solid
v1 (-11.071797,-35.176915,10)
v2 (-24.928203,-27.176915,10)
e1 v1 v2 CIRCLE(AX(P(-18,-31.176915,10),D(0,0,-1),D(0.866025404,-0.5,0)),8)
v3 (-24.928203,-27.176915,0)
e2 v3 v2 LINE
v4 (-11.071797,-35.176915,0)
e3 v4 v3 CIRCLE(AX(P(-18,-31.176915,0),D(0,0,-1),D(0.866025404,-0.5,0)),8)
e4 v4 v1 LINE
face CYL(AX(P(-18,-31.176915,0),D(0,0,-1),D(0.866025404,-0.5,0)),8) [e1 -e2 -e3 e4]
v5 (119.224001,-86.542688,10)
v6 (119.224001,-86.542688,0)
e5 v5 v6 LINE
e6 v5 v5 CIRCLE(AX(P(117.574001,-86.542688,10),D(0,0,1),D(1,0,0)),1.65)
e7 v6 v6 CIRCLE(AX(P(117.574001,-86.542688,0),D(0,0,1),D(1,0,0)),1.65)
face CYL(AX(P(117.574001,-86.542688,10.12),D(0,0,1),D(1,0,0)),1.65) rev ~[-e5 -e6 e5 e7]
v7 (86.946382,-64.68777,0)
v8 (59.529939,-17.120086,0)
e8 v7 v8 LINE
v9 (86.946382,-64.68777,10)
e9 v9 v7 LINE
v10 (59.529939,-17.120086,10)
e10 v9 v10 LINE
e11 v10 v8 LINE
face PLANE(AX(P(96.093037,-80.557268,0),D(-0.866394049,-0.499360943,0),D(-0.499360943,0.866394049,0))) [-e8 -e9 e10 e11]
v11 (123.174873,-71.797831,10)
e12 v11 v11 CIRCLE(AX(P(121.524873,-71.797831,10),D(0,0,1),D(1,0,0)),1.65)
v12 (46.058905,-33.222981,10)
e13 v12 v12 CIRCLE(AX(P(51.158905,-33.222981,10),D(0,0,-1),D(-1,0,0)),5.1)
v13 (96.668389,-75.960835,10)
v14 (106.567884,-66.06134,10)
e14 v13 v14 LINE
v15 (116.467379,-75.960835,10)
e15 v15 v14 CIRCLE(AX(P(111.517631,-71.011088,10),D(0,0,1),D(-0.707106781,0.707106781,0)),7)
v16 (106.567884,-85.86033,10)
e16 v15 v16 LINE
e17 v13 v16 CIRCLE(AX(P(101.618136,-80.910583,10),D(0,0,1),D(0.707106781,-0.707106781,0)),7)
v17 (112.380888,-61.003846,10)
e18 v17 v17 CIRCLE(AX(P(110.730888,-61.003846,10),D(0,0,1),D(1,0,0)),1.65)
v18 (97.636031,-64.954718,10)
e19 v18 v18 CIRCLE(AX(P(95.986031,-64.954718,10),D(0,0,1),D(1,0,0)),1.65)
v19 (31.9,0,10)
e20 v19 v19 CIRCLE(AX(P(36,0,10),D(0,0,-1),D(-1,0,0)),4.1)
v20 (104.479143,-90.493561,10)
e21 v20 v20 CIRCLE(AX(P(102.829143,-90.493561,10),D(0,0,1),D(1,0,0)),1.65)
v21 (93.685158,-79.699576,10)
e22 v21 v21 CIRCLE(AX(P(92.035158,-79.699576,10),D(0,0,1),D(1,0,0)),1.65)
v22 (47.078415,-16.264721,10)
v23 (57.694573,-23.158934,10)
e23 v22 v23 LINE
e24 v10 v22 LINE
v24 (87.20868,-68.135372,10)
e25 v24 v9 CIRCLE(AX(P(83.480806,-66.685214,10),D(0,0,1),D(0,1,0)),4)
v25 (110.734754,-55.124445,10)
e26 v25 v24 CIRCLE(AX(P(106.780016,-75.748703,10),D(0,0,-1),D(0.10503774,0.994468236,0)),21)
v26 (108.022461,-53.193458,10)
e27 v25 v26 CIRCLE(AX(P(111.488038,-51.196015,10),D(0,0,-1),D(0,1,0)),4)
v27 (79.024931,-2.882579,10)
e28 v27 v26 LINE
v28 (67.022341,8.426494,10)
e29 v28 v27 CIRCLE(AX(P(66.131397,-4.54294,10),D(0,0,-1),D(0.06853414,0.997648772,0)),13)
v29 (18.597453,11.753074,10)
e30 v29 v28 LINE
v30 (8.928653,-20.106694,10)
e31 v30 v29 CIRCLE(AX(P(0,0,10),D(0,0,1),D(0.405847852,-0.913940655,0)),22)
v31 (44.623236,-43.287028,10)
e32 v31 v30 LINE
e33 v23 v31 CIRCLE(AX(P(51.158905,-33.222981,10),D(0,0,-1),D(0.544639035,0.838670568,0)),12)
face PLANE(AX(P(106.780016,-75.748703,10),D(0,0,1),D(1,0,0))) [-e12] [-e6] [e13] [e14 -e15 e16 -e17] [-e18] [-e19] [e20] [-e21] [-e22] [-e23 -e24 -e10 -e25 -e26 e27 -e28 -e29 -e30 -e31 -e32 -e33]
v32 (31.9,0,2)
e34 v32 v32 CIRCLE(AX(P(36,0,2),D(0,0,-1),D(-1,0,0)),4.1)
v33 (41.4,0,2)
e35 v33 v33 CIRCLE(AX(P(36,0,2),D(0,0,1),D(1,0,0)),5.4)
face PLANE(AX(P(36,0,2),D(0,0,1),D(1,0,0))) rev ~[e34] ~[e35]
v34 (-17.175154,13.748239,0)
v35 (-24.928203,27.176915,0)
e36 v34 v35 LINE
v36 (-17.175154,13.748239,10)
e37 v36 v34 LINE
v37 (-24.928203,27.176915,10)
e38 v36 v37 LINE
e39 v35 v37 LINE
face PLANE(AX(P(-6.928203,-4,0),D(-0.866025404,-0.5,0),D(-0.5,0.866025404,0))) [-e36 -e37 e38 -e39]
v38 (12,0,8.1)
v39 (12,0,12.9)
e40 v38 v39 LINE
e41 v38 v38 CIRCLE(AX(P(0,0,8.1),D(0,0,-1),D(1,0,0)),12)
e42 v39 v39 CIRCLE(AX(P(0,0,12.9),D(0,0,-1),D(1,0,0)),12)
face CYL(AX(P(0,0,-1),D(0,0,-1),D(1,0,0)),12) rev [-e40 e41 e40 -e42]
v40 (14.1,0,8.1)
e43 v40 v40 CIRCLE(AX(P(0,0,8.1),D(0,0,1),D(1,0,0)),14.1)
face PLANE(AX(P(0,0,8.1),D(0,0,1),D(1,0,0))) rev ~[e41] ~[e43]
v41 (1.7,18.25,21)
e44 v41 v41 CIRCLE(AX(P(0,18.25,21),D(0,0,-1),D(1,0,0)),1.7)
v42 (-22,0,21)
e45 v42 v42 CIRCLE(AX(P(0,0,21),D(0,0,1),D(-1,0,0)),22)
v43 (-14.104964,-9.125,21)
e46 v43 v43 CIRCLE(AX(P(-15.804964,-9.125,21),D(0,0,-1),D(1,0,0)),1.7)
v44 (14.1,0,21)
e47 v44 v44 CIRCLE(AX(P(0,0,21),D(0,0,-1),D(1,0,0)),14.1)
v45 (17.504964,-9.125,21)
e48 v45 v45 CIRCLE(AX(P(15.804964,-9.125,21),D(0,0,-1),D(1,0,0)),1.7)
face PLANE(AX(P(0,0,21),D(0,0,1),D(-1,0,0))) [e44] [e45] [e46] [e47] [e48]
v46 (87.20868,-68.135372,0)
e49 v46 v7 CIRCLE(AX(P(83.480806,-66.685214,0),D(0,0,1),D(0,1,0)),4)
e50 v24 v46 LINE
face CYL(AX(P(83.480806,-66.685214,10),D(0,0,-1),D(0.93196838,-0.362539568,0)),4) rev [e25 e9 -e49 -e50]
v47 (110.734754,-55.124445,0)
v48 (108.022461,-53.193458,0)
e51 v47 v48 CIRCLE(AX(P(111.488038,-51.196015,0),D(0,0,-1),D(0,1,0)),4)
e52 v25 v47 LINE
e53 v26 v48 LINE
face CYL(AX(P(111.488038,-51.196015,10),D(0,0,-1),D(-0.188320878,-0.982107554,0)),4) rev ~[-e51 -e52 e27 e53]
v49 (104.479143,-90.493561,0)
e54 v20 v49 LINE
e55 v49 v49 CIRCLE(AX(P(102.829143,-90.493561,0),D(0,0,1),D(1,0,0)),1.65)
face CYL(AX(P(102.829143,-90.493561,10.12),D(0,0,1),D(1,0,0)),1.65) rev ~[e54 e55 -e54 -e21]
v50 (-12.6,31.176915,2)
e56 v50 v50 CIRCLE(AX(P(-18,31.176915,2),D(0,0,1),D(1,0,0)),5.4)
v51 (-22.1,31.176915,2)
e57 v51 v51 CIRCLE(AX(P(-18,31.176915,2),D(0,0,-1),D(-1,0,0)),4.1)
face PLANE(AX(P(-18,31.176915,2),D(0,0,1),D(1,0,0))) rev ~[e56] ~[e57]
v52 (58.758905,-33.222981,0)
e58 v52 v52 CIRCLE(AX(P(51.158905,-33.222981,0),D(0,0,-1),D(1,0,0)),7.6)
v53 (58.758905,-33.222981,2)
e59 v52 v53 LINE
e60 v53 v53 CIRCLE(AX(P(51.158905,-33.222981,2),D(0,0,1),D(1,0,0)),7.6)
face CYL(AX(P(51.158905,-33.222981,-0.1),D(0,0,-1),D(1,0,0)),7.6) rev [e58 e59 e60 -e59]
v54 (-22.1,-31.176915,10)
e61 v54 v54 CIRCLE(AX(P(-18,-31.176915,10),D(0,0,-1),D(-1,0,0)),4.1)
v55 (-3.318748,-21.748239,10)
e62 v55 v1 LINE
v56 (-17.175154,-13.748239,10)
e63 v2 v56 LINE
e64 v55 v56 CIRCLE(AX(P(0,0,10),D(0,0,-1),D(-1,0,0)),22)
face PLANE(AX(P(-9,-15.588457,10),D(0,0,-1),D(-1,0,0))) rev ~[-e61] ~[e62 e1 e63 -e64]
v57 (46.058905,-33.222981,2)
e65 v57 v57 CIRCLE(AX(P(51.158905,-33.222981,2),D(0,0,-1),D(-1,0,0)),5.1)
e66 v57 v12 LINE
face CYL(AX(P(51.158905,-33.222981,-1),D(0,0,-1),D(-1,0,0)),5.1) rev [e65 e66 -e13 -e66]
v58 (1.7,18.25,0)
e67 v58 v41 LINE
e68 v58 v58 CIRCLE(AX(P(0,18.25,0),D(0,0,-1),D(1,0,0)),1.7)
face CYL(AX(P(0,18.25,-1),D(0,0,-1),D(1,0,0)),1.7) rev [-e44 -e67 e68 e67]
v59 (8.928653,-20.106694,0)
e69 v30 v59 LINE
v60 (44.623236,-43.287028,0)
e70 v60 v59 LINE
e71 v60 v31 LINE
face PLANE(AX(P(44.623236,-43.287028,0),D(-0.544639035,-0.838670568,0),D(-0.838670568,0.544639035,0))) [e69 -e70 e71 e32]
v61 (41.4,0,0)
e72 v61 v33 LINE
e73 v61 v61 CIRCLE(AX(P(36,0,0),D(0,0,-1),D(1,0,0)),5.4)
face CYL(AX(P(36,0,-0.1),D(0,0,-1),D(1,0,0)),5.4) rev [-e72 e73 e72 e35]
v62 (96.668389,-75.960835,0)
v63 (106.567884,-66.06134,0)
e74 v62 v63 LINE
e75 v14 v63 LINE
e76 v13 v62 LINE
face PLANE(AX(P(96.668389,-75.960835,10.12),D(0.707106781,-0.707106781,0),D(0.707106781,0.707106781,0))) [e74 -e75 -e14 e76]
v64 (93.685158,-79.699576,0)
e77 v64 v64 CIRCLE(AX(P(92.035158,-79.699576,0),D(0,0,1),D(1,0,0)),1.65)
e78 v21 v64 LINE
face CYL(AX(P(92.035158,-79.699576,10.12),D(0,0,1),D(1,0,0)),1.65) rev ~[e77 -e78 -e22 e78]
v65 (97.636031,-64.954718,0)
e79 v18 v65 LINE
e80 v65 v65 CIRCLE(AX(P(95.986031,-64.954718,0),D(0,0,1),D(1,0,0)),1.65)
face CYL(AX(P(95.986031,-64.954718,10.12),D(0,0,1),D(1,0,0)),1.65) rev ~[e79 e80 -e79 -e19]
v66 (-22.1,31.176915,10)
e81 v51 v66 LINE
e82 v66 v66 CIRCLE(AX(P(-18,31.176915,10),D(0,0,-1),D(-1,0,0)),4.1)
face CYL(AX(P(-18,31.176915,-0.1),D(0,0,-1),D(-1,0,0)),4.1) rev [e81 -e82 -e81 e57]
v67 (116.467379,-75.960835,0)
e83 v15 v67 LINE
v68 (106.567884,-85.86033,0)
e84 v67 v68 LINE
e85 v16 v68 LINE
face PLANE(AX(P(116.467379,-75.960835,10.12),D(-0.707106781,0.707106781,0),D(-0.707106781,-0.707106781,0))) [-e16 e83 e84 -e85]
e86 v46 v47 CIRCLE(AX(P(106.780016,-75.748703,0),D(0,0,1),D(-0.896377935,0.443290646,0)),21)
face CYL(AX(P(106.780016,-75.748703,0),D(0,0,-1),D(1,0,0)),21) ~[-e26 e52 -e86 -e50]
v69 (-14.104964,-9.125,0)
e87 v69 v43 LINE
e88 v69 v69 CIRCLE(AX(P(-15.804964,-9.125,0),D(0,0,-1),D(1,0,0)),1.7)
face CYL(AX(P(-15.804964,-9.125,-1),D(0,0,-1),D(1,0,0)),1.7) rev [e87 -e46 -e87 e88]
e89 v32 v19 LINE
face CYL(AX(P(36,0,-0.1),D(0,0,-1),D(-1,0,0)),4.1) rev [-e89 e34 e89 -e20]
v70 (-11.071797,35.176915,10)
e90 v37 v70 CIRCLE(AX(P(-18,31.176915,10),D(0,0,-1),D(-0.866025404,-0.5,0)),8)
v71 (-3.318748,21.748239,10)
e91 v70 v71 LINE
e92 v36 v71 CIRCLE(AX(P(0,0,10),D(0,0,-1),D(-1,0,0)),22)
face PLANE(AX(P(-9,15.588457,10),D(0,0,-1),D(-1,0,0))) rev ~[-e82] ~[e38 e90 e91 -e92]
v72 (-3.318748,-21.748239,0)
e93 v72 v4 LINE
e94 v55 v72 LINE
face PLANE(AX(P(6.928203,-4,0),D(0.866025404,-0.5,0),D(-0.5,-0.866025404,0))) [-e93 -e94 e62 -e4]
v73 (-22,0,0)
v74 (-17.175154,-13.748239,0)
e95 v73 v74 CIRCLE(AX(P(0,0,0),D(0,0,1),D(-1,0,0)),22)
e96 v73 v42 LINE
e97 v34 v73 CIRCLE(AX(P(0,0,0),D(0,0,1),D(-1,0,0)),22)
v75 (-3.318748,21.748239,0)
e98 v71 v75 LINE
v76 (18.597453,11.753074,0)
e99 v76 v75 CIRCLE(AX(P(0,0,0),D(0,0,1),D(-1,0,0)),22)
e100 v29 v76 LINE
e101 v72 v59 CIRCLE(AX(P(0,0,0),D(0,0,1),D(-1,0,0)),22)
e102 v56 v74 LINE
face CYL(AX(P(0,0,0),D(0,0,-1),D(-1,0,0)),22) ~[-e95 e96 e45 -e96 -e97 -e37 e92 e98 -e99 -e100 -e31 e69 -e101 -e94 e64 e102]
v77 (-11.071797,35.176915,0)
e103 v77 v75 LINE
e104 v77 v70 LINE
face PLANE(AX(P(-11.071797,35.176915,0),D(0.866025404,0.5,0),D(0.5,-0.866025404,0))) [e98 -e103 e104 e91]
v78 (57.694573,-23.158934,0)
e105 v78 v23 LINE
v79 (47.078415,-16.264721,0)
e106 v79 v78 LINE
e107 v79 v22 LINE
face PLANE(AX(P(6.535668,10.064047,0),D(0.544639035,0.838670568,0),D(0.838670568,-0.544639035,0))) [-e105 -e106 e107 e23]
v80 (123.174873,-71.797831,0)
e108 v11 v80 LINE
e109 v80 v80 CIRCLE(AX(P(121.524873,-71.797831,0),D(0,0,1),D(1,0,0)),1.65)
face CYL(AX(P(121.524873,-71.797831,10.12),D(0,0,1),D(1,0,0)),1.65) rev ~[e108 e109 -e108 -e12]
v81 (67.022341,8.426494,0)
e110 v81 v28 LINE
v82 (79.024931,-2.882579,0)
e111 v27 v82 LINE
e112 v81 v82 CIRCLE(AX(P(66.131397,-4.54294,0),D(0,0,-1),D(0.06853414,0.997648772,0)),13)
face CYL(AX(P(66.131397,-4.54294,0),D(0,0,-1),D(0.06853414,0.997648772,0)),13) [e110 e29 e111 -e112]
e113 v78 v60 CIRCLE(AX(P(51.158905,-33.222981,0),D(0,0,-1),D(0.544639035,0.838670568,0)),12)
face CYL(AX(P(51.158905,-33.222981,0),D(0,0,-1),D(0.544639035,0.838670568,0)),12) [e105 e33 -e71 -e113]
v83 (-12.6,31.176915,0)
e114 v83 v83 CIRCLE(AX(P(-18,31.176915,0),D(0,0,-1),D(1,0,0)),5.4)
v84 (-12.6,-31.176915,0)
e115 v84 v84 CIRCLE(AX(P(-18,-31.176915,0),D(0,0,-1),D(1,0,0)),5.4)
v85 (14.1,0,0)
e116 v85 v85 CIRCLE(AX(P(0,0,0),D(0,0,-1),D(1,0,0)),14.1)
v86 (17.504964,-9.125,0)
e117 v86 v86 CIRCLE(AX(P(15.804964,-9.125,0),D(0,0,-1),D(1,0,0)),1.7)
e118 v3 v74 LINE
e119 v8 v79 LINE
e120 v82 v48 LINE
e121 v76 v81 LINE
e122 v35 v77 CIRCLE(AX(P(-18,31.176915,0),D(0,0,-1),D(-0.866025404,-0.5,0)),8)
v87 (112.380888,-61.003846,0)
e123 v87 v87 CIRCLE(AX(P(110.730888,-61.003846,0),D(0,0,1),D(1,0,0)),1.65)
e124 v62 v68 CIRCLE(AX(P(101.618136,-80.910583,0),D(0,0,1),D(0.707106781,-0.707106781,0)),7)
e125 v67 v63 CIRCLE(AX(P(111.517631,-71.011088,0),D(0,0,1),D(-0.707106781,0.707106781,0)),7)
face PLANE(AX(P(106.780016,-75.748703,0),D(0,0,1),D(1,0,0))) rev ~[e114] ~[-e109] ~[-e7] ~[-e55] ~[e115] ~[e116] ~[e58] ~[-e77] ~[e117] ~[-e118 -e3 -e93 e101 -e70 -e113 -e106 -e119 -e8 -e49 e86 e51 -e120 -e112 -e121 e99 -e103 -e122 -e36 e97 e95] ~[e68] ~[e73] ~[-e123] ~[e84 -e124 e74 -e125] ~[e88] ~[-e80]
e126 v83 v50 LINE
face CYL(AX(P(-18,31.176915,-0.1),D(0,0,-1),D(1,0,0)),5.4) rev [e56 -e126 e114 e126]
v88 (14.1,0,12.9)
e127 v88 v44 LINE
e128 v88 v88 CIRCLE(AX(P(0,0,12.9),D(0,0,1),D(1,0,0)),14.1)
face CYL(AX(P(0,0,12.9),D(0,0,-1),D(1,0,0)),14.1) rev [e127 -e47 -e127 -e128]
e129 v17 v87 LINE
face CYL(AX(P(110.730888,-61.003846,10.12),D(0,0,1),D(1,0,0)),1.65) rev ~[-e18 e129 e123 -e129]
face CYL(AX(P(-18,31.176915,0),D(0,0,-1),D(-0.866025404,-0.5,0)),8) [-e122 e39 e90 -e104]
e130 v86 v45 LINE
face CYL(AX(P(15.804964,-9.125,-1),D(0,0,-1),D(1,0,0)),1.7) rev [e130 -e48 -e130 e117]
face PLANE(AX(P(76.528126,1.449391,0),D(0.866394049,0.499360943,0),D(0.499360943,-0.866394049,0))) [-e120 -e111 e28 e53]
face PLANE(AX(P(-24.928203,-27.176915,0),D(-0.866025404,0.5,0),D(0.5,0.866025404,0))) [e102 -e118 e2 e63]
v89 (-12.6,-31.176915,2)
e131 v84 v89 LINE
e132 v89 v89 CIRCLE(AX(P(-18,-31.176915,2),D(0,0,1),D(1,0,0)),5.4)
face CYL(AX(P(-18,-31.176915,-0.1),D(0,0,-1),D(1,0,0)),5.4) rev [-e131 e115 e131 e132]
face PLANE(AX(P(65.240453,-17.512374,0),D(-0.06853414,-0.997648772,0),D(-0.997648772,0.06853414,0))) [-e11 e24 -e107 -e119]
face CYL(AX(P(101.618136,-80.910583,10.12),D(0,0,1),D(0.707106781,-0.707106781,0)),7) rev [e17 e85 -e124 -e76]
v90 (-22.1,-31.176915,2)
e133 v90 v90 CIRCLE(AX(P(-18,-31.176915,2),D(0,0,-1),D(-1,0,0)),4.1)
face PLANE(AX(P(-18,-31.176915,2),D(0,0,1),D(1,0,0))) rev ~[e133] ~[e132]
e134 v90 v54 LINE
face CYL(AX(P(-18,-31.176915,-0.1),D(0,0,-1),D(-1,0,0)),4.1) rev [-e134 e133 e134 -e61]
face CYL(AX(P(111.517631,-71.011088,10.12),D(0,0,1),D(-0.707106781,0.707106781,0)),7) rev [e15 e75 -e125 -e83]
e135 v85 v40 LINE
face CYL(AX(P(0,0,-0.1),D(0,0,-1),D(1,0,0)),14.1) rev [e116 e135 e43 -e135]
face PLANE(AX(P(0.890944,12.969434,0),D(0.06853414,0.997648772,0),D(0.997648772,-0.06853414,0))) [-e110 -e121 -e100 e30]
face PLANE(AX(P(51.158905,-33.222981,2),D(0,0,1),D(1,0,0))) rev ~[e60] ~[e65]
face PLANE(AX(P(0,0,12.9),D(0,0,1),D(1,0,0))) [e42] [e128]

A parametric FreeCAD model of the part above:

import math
import FreeCAD as App
import Part
import Sketcher

V = App.Vector
Q = App.Units.Quantity


def edges_at(feature, points):
    """Names of the edges that pass closest to the given points."""
    edges = feature.Shape.Edges
    near = lambda p: min(range(len(edges)), key=lambda i: edges[i].distToShape(Part.Vertex(*p))[0])
    return sorted({f"Edge{near(p) + 1}" for p in points})

doc = App.newDocument("Part")
body = doc.addObject("PartDesign::Body", "Body")

sketch1 = doc.addObject("Sketcher::SketchObject", "Sketch")
body.addObject(sketch1)
sketch1.AttachmentSupport = (doc.XY_Plane, [""])
sketch1.MapMode = "FlatFace"
sketch1.addGeometry(Part.Circle(V(0, 0, 0), V(0, 0, 1), 22), False)
sketch1.addConstraint([
    Sketcher.Constraint("Coincident", 0, 3, -1, 1),
    Sketcher.Constraint("Diameter", 0, Q("44 mm")),
])
pad1 = doc.addObject("PartDesign::Pad", "Pad")
body.addObject(pad1)
pad1.Profile = sketch1
pad1.Length = 21

sketch2 = doc.addObject("Sketcher::SketchObject", "Sketch001")
body.addObject(sketch2)
sketch2.AttachmentSupport = (doc.XY_Plane, [""])
sketch2.MapMode = "FlatFace"
sketch2.addGeometry([
    Part.LineSegment(V(36, 8, 0), V(0, 8, 0)),
    Part.ArcOfCircle(Part.Circle(V(0, 0, 0), V(0, 0, 1), 8), math.radians(90), math.radians(270)),
    Part.LineSegment(V(0, -8, 0), V(36, -8, 0)),
    Part.ArcOfCircle(Part.Circle(V(36, 0, 0), V(0, 0, 1), 8), math.radians(-90), math.radians(90)),
], False)
sketch2.addConstraint([
    Sketcher.Constraint("Tangent", 0, 2, 1, 1),
    Sketcher.Constraint("Tangent", 1, 2, 2, 1),
    Sketcher.Constraint("Tangent", 2, 2, 3, 1),
    Sketcher.Constraint("Tangent", 3, 2, 0, 1),
    Sketcher.Constraint("Horizontal", 0),
    Sketcher.Constraint("Horizontal", 2),
    Sketcher.Constraint("Coincident", 1, 3, -1, 1),
    Sketcher.Constraint("Radius", 1, Q("8 mm")),
    Sketcher.Constraint("DistanceX", 0, 2, 0, 1, Q("36 mm")),
])
pad2 = doc.addObject("PartDesign::Pad", "Pad001")
body.addObject(pad2)
pad2.Profile = sketch2
pad2.Length = 10

sketch3 = doc.addObject("Sketcher::SketchObject", "Sketch002")
body.addObject(sketch3)
sketch3.AttachmentSupport = (doc.XY_Plane, [""])
sketch3.MapMode = "FlatFace"
sketch3.addGeometry([
    Part.LineSegment(V(-24.928203, 27.176915, 0), V(-6.928203, -4, 0)),
    Part.ArcOfCircle(Part.Circle(V(0, 0, 0), V(0, 0, 1), 8), math.radians(-150), math.radians(30)),
    Part.LineSegment(V(6.928203, 4, 0), V(-11.071797, 35.176915, 0)),
    Part.ArcOfCircle(Part.Circle(V(-18, 31.176915, 0), V(0, 0, 1), 8), math.radians(30), math.radians(210)),
], False)
sketch3.addConstraint([
    Sketcher.Constraint("Tangent", 0, 2, 1, 1),
    Sketcher.Constraint("Tangent", 1, 2, 2, 1),
    Sketcher.Constraint("Tangent", 2, 2, 3, 1),
    Sketcher.Constraint("Tangent", 3, 2, 0, 1),
    Sketcher.Constraint("Coincident", 1, 3, -1, 1),
    Sketcher.Constraint("Equal", 1, 3),
    Sketcher.Constraint("Radius", 1, Q("8 mm")),
    Sketcher.Constraint("Angle", 0, Q("-60 deg")),
    Sketcher.Constraint("Distance", 0, Q("36 mm")),
])
pad3 = doc.addObject("PartDesign::Pad", "Pad002")
body.addObject(pad3)
pad3.Profile = sketch3
pad3.Length = 10

sketch4 = doc.addObject("Sketcher::SketchObject", "Sketch003")
body.addObject(sketch4)
sketch4.AttachmentSupport = (doc.XY_Plane, [""])
sketch4.MapMode = "FlatFace"
sketch4.addGeometry([
    Part.LineSegment(V(-11.071797, -35.176915, 0), V(6.928203, -4, 0)),
    Part.ArcOfCircle(Part.Circle(V(0, 0, 0), V(0, 0, 1), 8), math.radians(-30), math.radians(150)),
    Part.LineSegment(V(-6.928203, 4, 0), V(-24.928203, -27.176915, 0)),
    Part.ArcOfCircle(Part.Circle(V(-18, -31.176915, 0), V(0, 0, 1), 8), math.radians(150), math.radians(330)),
], False)
sketch4.addConstraint([
    Sketcher.Constraint("Tangent", 0, 2, 1, 1),
    Sketcher.Constraint("Tangent", 1, 2, 2, 1),
    Sketcher.Constraint("Tangent", 2, 2, 3, 1),
    Sketcher.Constraint("Tangent", 3, 2, 0, 1),
    Sketcher.Constraint("Coincident", 1, 3, -1, 1),
    Sketcher.Constraint("Equal", 1, 3),
    Sketcher.Constraint("Radius", 1, Q("8 mm")),
    Sketcher.Constraint("Angle", 0, Q("60 deg")),
    Sketcher.Constraint("Distance", 0, Q("36 mm")),
])
pad4 = doc.addObject("PartDesign::Pad", "Pad003")
body.addObject(pad4)
pad4.Profile = sketch4
pad4.Length = 10

sketch5 = doc.addObject("Sketcher::SketchObject", "Sketch004")
body.addObject(sketch5)
sketch5.AttachmentSupport = (doc.XY_Plane, [""])
sketch5.MapMode = "FlatFace"
sketch5.addGeometry([
    Part.LineSegment(V(67.022341, 8.426494, 0), V(0.890944, 12.969434, 0)),
    Part.ArcOfCircle(Part.Circle(V(0, 0, 0), V(0, 0, 1), 13), math.radians(86.070203), math.radians(266.070203)),
    Part.LineSegment(V(-0.890944, -12.969434, 0), V(65.240453, -17.512374, 0)),
    Part.ArcOfCircle(Part.Circle(V(66.131397, -4.54294, 0), V(0, 0, 1), 13), math.radians(-93.929797), math.radians(86.070203)),
], False)
sketch5.addConstraint([
    Sketcher.Constraint("Tangent", 0, 2, 1, 1),
    Sketcher.Constraint("Tangent", 1, 2, 2, 1),
    Sketcher.Constraint("Tangent", 2, 2, 3, 1),
    Sketcher.Constraint("Tangent", 3, 2, 0, 1),
    Sketcher.Constraint("Coincident", 1, 3, -1, 1),
    Sketcher.Constraint("Equal", 1, 3),
    Sketcher.Constraint("Radius", 1, Q("13 mm")),
    Sketcher.Constraint("DistanceY", 3, 3, -1, 1, Q("4.54294 mm")),
    Sketcher.Constraint("DistanceX", -1, 1, 3, 2, Q("67.022341 mm")),
])
pad5 = doc.addObject("PartDesign::Pad", "Pad004")
body.addObject(pad5)
pad5.Profile = sketch5
pad5.Length = 10

sketch6 = doc.addObject("Sketcher::SketchObject", "Sketch005")
body.addObject(sketch6)
sketch6.AttachmentSupport = (doc.XY_Plane, [""])
sketch6.MapMode = "FlatFace"
sketch6.addGeometry([
    Part.LineSegment(V(116.886494, -68.572605, 0), V(76.528126, 1.449391, 0)),
    Part.ArcOfCircle(Part.Circle(V(66.131397, -4.54294, 0), V(0, 0, 1), 12), math.radians(29.957729), math.radians(209.957729)),
    Part.LineSegment(V(55.734669, -10.535271, 0), V(96.093037, -80.557268, 0)),
    Part.ArcOfCircle(Part.Circle(V(106.489766, -74.564937, 0), V(0, 0, 1), 12), math.radians(-150.042271), math.radians(29.957729)),
], False)
sketch6.addConstraint([
    Sketcher.Constraint("Tangent", 0, 2, 1, 1),
    Sketcher.Constraint("Tangent", 1, 2, 2, 1),
    Sketcher.Constraint("Tangent", 2, 2, 3, 1),
    Sketcher.Constraint("Tangent", 3, 2, 0, 1),
    Sketcher.Constraint("Equal", 1, 3),
    Sketcher.Constraint("Radius", 1, Q("12 mm")),
    Sketcher.Constraint("DistanceY", 1, 3, -1, 1, Q("4.54294 mm")),
    Sketcher.Constraint("DistanceY", -1, 1, 0, 2, Q("1.449391 mm")),
    Sketcher.Constraint("DistanceX", -1, 1, 1, 2, Q("55.734669 mm")),
    Sketcher.Constraint("DistanceY", 2, 2, -1, 1, Q("80.557268 mm")),
])
pad6 = doc.addObject("PartDesign::Pad", "Pad005")
body.addObject(pad6)
pad6.Profile = sketch6
pad6.Length = 10

sketch7 = doc.addObject("Sketcher::SketchObject", "Sketch006")
body.addObject(sketch7)
sketch7.AttachmentSupport = (doc.XY_Plane, [""])
sketch7.MapMode = "FlatFace"
sketch7.addGeometry([
    Part.LineSegment(V(57.694573, -23.158934, 0), V(6.535668, 10.064047, 0)),
    Part.ArcOfCircle(Part.Circle(V(0, 0, 0), V(0, 0, 1), 12), math.radians(57), math.radians(237)),
    Part.LineSegment(V(-6.535668, -10.064047, 0), V(44.623236, -43.287028, 0)),
    Part.ArcOfCircle(Part.Circle(V(51.158905, -33.222981, 0), V(0, 0, 1), 12), math.radians(-123), math.radians(57)),
], False)
sketch7.addConstraint([
    Sketcher.Constraint("Tangent", 0, 2, 1, 1),
    Sketcher.Constraint("Tangent", 1, 2, 2, 1),
    Sketcher.Constraint("Tangent", 2, 2, 3, 1),
    Sketcher.Constraint("Tangent", 3, 2, 0, 1),
    Sketcher.Constraint("Coincident", 1, 3, -1, 1),
    Sketcher.Constraint("Equal", 1, 3),
    Sketcher.Constraint("Radius", 1, Q("12 mm")),
    Sketcher.Constraint("Angle", 0, Q("147 deg")),
    Sketcher.Constraint("Distance", 0, Q("61 mm")),
])
pad7 = doc.addObject("PartDesign::Pad", "Pad006")
body.addObject(pad7)
pad7.Profile = sketch7
pad7.Length = 10

sketch8 = doc.addObject("Sketcher::SketchObject", "Sketch007")
body.addObject(sketch8)
sketch8.AttachmentSupport = (doc.XY_Plane, [""])
sketch8.MapMode = "FlatFace"
sketch8.AttachmentOffset = App.Placement(V(0, 0, -1), App.Rotation())
sketch8.addGeometry(Part.Circle(V(0, 0, 0), V(0, 0, 1), 12), False)
sketch8.addConstraint([
    Sketcher.Constraint("Coincident", 0, 3, -1, 1),
    Sketcher.Constraint("Diameter", 0, Q("24 mm")),
])
pocket1 = doc.addObject("PartDesign::Pocket", "Pocket")
body.addObject(pocket1)
pocket1.Profile = sketch8
pocket1.Length = 23
pocket1.Reversed = True

sketch9 = doc.addObject("Sketcher::SketchObject", "Sketch008")
body.addObject(sketch9)
sketch9.AttachmentSupport = (doc.XY_Plane, [""])
sketch9.MapMode = "FlatFace"
sketch9.AttachmentOffset = App.Placement(V(0, 0, -0.1), App.Rotation())
sketch9.addGeometry(Part.Circle(V(0, 0, 0), V(0, 0, 1), 14.1), False)
sketch9.addConstraint([
    Sketcher.Constraint("Coincident", 0, 3, -1, 1),
    Sketcher.Constraint("Diameter", 0, Q("28.2 mm")),
])
pocket2 = doc.addObject("PartDesign::Pocket", "Pocket001")
body.addObject(pocket2)
pocket2.Profile = sketch9
pocket2.Length = 8.2
pocket2.Reversed = True

sketch10 = doc.addObject("Sketcher::SketchObject", "Sketch009")
body.addObject(sketch10)
sketch10.AttachmentSupport = (doc.XY_Plane, [""])
sketch10.MapMode = "FlatFace"
sketch10.AttachmentOffset = App.Placement(V(0, 0, 12.9), App.Rotation())
sketch10.addGeometry(Part.Circle(V(0, 0, 0), V(0, 0, 1), 14.1), False)
sketch10.addConstraint([
    Sketcher.Constraint("Coincident", 0, 3, -1, 1),
    Sketcher.Constraint("Diameter", 0, Q("28.2 mm")),
])
pocket3 = doc.addObject("PartDesign::Pocket", "Pocket002")
body.addObject(pocket3)
pocket3.Profile = sketch10
pocket3.Length = 8.2
pocket3.Reversed = True

sketch11 = doc.addObject("Sketcher::SketchObject", "Sketch010")
body.addObject(sketch11)
sketch11.AttachmentSupport = (doc.XY_Plane, [""])
sketch11.MapMode = "FlatFace"
sketch11.AttachmentOffset = App.Placement(V(0, 0, -1), App.Rotation())
sketch11.addGeometry([
    Part.Circle(V(0, 18.25, 0), V(0, 0, 1), 1.7),
    Part.Circle(V(-15.804964, -9.125, 0), V(0, 0, 1), 1.7),
    Part.Circle(V(15.804964, -9.125, 0), V(0, 0, 1), 1.7),
], False)
sketch11.addConstraint([
    Sketcher.Constraint("Equal", 0, 1),
    Sketcher.Constraint("Equal", 1, 2),
    Sketcher.Constraint("Symmetric", 1, 3, 2, 3, -2),
    Sketcher.Constraint("PointOnObject", 0, 3, -2),
    Sketcher.Constraint("Diameter", 0, Q("3.4 mm")),
    Sketcher.Constraint("DistanceY", -1, 1, 0, 3, Q("18.25 mm")),
    Sketcher.Constraint("DistanceY", 1, 3, -1, 1, Q("9.125 mm")),
    Sketcher.Constraint("DistanceX", 1, 3, -1, 1, Q("15.804964 mm")),
])
pocket4 = doc.addObject("PartDesign::Pocket", "Pocket003")
body.addObject(pocket4)
pocket4.Profile = sketch11
pocket4.Length = 23
pocket4.Reversed = True

sketch12 = doc.addObject("Sketcher::SketchObject", "Sketch011")
body.addObject(sketch12)
sketch12.AttachmentSupport = (doc.XY_Plane, [""])
sketch12.MapMode = "FlatFace"
sketch12.AttachmentOffset = App.Placement(V(0, 0, -1), App.Rotation())
sketch12.addGeometry([
    Part.Circle(V(36, 0, 0), V(0, 0, 1), 3.25),
    Part.Circle(V(-18, 31.176915, 0), V(0, 0, 1), 3.25),
    Part.Circle(V(-18, -31.176915, 0), V(0, 0, 1), 3.25),
], False)
sketch12.addConstraint([
    Sketcher.Constraint("Equal", 0, 1),
    Sketcher.Constraint("Equal", 1, 2),
    Sketcher.Constraint("Symmetric", 1, 3, 2, 3, -1),
    Sketcher.Constraint("PointOnObject", 0, 3, -1),
    Sketcher.Constraint("Diameter", 0, Q("6.5 mm")),
    Sketcher.Constraint("DistanceX", -1, 1, 0, 3, Q("36 mm")),
    Sketcher.Constraint("DistanceX", 1, 3, -1, 1, Q("18 mm")),
    Sketcher.Constraint("DistanceY", 2, 3, 1, 3, Q("62.353829 mm")),
])
pocket5 = doc.addObject("PartDesign::Pocket", "Pocket004")
body.addObject(pocket5)
pocket5.Profile = sketch12
pocket5.Length = 12
pocket5.Reversed = True

sketch13 = doc.addObject("Sketcher::SketchObject", "Sketch012")
body.addObject(sketch13)
sketch13.AttachmentSupport = (doc.XY_Plane, [""])
sketch13.MapMode = "FlatFace"
sketch13.AttachmentOffset = App.Placement(V(0, 0, -1), App.Rotation())
sketch13.addGeometry(Part.Circle(V(51.158905, -33.222981, 0), V(0, 0, 1), 5.1), False)
sketch13.addConstraint([
    Sketcher.Constraint("Diameter", 0, Q("10.2 mm")),
    Sketcher.Constraint("DistanceY", 0, 3, -1, 1, Q("33.222981 mm")),
    Sketcher.Constraint("DistanceX", -1, 1, 0, 3, Q("51.158905 mm")),
])
pocket6 = doc.addObject("PartDesign::Pocket", "Pocket005")
body.addObject(pocket6)
pocket6.Profile = sketch13
pocket6.Length = 12
pocket6.Reversed = True

sketch14 = doc.addObject("Sketcher::SketchObject", "Sketch013")
body.addObject(sketch14)
sketch14.AttachmentSupport = (doc.XY_Plane, [""])
sketch14.MapMode = "FlatFace"
sketch14.AttachmentOffset = App.Placement(V(0, 0, -0.1), App.Rotation())
sketch14.addGeometry(Part.Circle(V(51.158905, -33.222981, 0), V(0, 0, 1), 7.6), False)
sketch14.addConstraint([
    Sketcher.Constraint("Diameter", 0, Q("15.2 mm")),
    Sketcher.Constraint("DistanceY", 0, 3, -1, 1, Q("33.222981 mm")),
    Sketcher.Constraint("DistanceX", -1, 1, 0, 3, Q("51.158905 mm")),
])
pocket7 = doc.addObject("PartDesign::Pocket", "Pocket006")
body.addObject(pocket7)
pocket7.Profile = sketch14
pocket7.Length = 2.1
pocket7.Reversed = True

sketch15 = doc.addObject("Sketcher::SketchObject", "Sketch014")
body.addObject(sketch15)
sketch15.AttachmentSupport = (doc.XY_Plane, [""])
sketch15.MapMode = "FlatFace"
sketch15.addGeometry(Part.Circle(V(106.780016, -75.748703, 0), V(0, 0, 1), 21), False)
sketch15.addConstraint([
    Sketcher.Constraint("Diameter", 0, Q("42 mm")),
    Sketcher.Constraint("DistanceX", -1, 1, 0, 3, Q("106.780016 mm")),
    Sketcher.Constraint("DistanceY", 0, 3, -1, 1, Q("75.748703 mm")),
])
pad8 = doc.addObject("PartDesign::Pad", "Pad007")
body.addObject(pad8)
pad8.Profile = sketch15
pad8.Length = 10
doc.recompute()

fillet = doc.addObject("PartDesign::Fillet", "Fillet")
body.addObject(fillet)
fillet.Base = (pad8, edges_at(pad8, [(108.986, -54.865, 5), (87.956, -66.44, 5)]))
fillet.Radius = 4

sketch16 = doc.addObject("Sketcher::SketchObject", "Sketch015")
body.addObject(sketch16)
sketch16.AttachmentSupport = (doc.XY_Plane, [""])
sketch16.MapMode = "FlatFace"
sketch16.AttachmentOffset = App.Placement(V(0, 0, 10.12), App.Rotation())
sketch16.addGeometry([
    Part.LineSegment(V(106.567884, -66.06134, 0), V(96.668389, -75.960835, 0)),
    Part.ArcOfCircle(Part.Circle(V(101.618136, -80.910583, 0), V(0, 0, 1), 7), math.radians(135), math.radians(315)),
    Part.LineSegment(V(106.567884, -85.86033, 0), V(116.467379, -75.960835, 0)),
    Part.ArcOfCircle(Part.Circle(V(111.517631, -71.011088, 0), V(0, 0, 1), 7), math.radians(-45), math.radians(135)),
], False)
sketch16.addConstraint([
    Sketcher.Constraint("Tangent", 0, 2, 1, 1),
    Sketcher.Constraint("Tangent", 1, 2, 2, 1),
    Sketcher.Constraint("Tangent", 2, 2, 3, 1),
    Sketcher.Constraint("Tangent", 3, 2, 0, 1),
    Sketcher.Constraint("Equal", 1, 3),
    Sketcher.Constraint("Horizontal", 0, 2, 2, 2),
    Sketcher.Constraint("Vertical", 1, 2, 3, 2),
    Sketcher.Constraint("Radius", 1, Q("7 mm")),
    Sketcher.Constraint("DistanceX", -1, 1, 3, 3, Q("111.517631 mm")),
    Sketcher.Constraint("DistanceY", 1, 2, -1, 1, Q("85.86033 mm")),
])
pocket8 = doc.addObject("PartDesign::Pocket", "Pocket007")
body.addObject(pocket8)
pocket8.Profile = sketch16
pocket8.Length = 10.24

sketch17 = doc.addObject("Sketcher::SketchObject", "Sketch016")
body.addObject(sketch17)
sketch17.AttachmentSupport = (doc.XY_Plane, [""])
sketch17.MapMode = "FlatFace"
sketch17.AttachmentOffset = App.Placement(V(0, 0, 10.12), App.Rotation())
sketch17.addGeometry([
    Part.Circle(V(92.035158, -79.699576, 0), V(0, 0, 1), 1.65),
    Part.Circle(V(102.829143, -90.493561, 0), V(0, 0, 1), 1.65),
    Part.Circle(V(117.574001, -86.542688, 0), V(0, 0, 1), 1.65),
    Part.Circle(V(121.524873, -71.797831, 0), V(0, 0, 1), 1.65),
    Part.Circle(V(110.730888, -61.003846, 0), V(0, 0, 1), 1.65),
    Part.Circle(V(95.986031, -64.954718, 0), V(0, 0, 1), 1.65),
], False)
sketch17.addConstraint([
    Sketcher.Constraint("Equal", 0, 1),
    Sketcher.Constraint("Equal", 1, 2),
    Sketcher.Constraint("Equal", 2, 3),
    Sketcher.Constraint("Equal", 3, 4),
    Sketcher.Constraint("Equal", 4, 5),
    Sketcher.Constraint("Diameter", 0, Q("3.3 mm")),
    Sketcher.Constraint("DistanceX", -1, 1, 2, 3, Q("117.574001 mm")),
    Sketcher.Constraint("DistanceY", 1, 3, -1, 1, Q("90.493561 mm")),
    Sketcher.Constraint("DistanceY", 2, 3, -1, 1, Q("86.542688 mm")),
    Sketcher.Constraint("DistanceY", 3, 3, -1, 1, Q("71.797831 mm")),
    Sketcher.Constraint("DistanceX", -1, 1, 4, 3, Q("110.730888 mm")),
    Sketcher.Constraint("DistanceX", -1, 1, 5, 3, Q("95.986031 mm")),
    Sketcher.Constraint("DistanceY", 5, 3, -1, 1, Q("64.954718 mm")),
    Sketcher.Constraint("DistanceX", 1, 3, 3, 3, Q("18.69573 mm")),
    Sketcher.Constraint("DistanceX", 0, 3, 4, 3, Q("18.69573 mm")),
    Sketcher.Constraint("DistanceY", 0, 3, 4, 3, Q("18.69573 mm")),
    Sketcher.Constraint("DistanceY", 0, 3, -1, 1, Q("79.699576 mm")),
    Sketcher.Constraint("DistanceX", -1, 1, 1, 3, Q("102.829143 mm")),
])
pocket9 = doc.addObject("PartDesign::Pocket", "Pocket008")
body.addObject(pocket9)
pocket9.Profile = sketch17
pocket9.Length = 10.24

sketch18 = doc.addObject("Sketcher::SketchObject", "Sketch017")
body.addObject(sketch18)
sketch18.AttachmentSupport = (doc.XY_Plane, [""])
sketch18.MapMode = "FlatFace"
sketch18.AttachmentOffset = App.Placement(V(0, 0, -0.1), App.Rotation())
sketch18.addGeometry([
    Part.Circle(V(36, 0, 0), V(0, 0, 1), 4.1),
    Part.Circle(V(-18, 31.176915, 0), V(0, 0, 1), 4.1),
    Part.Circle(V(-18, -31.176915, 0), V(0, 0, 1), 4.1),
], False)
sketch18.addConstraint([
    Sketcher.Constraint("Equal", 0, 1),
    Sketcher.Constraint("Equal", 1, 2),
    Sketcher.Constraint("Symmetric", 1, 3, 2, 3, -1),
    Sketcher.Constraint("PointOnObject", 0, 3, -1),
    Sketcher.Constraint("Diameter", 0, Q("8.2 mm")),
    Sketcher.Constraint("DistanceX", -1, 1, 0, 3, Q("36 mm")),
    Sketcher.Constraint("DistanceX", 1, 3, -1, 1, Q("18 mm")),
    Sketcher.Constraint("DistanceY", 2, 3, 1, 3, Q("62.353829 mm")),
])
pocket10 = doc.addObject("PartDesign::Pocket", "Pocket009")
body.addObject(pocket10)
pocket10.Profile = sketch18
pocket10.Length = 10.2
pocket10.Reversed = True

sketch19 = doc.addObject("Sketcher::SketchObject", "Sketch018")
body.addObject(sketch19)
sketch19.AttachmentSupport = (doc.XY_Plane, [""])
sketch19.MapMode = "FlatFace"
sketch19.AttachmentOffset = App.Placement(V(0, 0, -0.1), App.Rotation())
sketch19.addGeometry([
    Part.Circle(V(36, 0, 0), V(0, 0, 1), 5.4),
    Part.Circle(V(-18, 31.176915, 0), V(0, 0, 1), 5.4),
    Part.Circle(V(-18, -31.176915, 0), V(0, 0, 1), 5.4),
], False)
sketch19.addConstraint([
    Sketcher.Constraint("Equal", 0, 1),
    Sketcher.Constraint("Equal", 1, 2),
    Sketcher.Constraint("Symmetric", 1, 3, 2, 3, -1),
    Sketcher.Constraint("PointOnObject", 0, 3, -1),
    Sketcher.Constraint("Diameter", 0, Q("10.8 mm")),
    Sketcher.Constraint("DistanceX", -1, 1, 0, 3, Q("36 mm")),
    Sketcher.Constraint("DistanceX", 1, 3, -1, 1, Q("18 mm")),
    Sketcher.Constraint("DistanceY", 2, 3, 1, 3, Q("62.353829 mm")),
])
pocket11 = doc.addObject("PartDesign::Pocket", "Pocket010")
body.addObject(pocket11)
pocket11.Profile = sketch19
pocket11.Length = 2.1
pocket11.Reversed = True

doc.recompute()
